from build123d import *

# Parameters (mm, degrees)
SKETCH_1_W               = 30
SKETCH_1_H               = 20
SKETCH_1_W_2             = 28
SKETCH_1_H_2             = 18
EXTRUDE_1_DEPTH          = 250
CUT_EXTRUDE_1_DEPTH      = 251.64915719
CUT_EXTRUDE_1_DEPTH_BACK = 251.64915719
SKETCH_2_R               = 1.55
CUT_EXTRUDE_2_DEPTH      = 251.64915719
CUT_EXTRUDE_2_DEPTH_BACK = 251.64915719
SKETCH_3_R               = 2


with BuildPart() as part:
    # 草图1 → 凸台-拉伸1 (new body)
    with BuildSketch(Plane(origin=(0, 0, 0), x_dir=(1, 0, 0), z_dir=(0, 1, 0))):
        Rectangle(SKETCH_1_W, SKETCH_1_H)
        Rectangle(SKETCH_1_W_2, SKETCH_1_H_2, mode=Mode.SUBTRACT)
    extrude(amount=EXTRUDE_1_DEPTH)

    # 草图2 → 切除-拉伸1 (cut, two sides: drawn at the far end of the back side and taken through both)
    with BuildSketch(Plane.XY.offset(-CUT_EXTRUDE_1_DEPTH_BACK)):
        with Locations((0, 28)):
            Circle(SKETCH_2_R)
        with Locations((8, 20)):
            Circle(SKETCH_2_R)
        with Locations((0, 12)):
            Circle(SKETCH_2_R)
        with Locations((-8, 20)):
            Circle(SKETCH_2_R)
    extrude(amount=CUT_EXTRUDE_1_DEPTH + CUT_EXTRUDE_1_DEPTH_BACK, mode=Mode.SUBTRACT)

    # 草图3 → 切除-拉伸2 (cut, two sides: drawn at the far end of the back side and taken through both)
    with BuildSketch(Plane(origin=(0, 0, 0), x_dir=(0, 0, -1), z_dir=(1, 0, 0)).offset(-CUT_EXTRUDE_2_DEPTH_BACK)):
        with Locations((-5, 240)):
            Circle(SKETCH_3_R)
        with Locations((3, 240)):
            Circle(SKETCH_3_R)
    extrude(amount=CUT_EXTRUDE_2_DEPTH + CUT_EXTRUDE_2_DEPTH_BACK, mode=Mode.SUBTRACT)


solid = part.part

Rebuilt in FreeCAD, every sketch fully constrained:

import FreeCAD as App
import Part
import Sketcher

doc = App.newDocument("Part")
body = doc.addObject("PartDesign::Body", "Body")

sketch1 = body.newObject("Sketcher::SketchObject", "Sketch")
sketch1.AttachmentSupport = (doc.getObject("XZ_Plane"), [""])
sketch1.MapMode = "FlatFace"
sketch1.addGeometry(Part.LineSegment(App.Vector(-15, -10, 0), App.Vector(-15, 10, 0)), False)
sketch1.addGeometry(Part.LineSegment(App.Vector(-15, 10, 0), App.Vector(15, 10, 0)), False)
sketch1.addGeometry(Part.LineSegment(App.Vector(15, 10, 0), App.Vector(15, -10, 0)), False)
sketch1.addGeometry(Part.LineSegment(App.Vector(15, -10, 0), App.Vector(-15, -10, 0)), False)
sketch1.addGeometry(Part.LineSegment(App.Vector(14, 9, 0), App.Vector(-14, 9, 0)), False)
sketch1.addGeometry(Part.LineSegment(App.Vector(-14, 9, 0), App.Vector(-14, -9, 0)), False)
sketch1.addGeometry(Part.LineSegment(App.Vector(-14, -9, 0), App.Vector(14, -9, 0)), False)
sketch1.addGeometry(Part.LineSegment(App.Vector(14, -9, 0), App.Vector(14, 9, 0)), False)
sketch1.addConstraint(Sketcher.Constraint("Coincident", 0, 2, 1, 1))
sketch1.addConstraint(Sketcher.Constraint("Coincident", 1, 2, 2, 1))
sketch1.addConstraint(Sketcher.Constraint("Coincident", 2, 2, 3, 1))
sketch1.addConstraint(Sketcher.Constraint("Coincident", 3, 2, 0, 1))
sketch1.addConstraint(Sketcher.Constraint("Coincident", 4, 2, 5, 1))
sketch1.addConstraint(Sketcher.Constraint("Coincident", 5, 2, 6, 1))
sketch1.addConstraint(Sketcher.Constraint("Coincident", 6, 2, 7, 1))
sketch1.addConstraint(Sketcher.Constraint("Coincident", 7, 2, 4, 1))
sketch1.addConstraint(Sketcher.Constraint("Vertical", 0))
sketch1.addConstraint(Sketcher.Constraint("Horizontal", 1))
sketch1.addConstraint(Sketcher.Constraint("Vertical", 2))
sketch1.addConstraint(Sketcher.Constraint("Horizontal", 3))
sketch1.addConstraint(Sketcher.Constraint("Horizontal", 4))
sketch1.addConstraint(Sketcher.Constraint("Vertical", 5))
sketch1.addConstraint(Sketcher.Constraint("Horizontal", 6))
sketch1.addConstraint(Sketcher.Constraint("Vertical", 7))
sketch1.addConstraint(Sketcher.Constraint("Symmetric", 0, 2, 2, 2, -1, 1))
sketch1.addConstraint(Sketcher.Constraint("Symmetric", 4, 2, 6, 2, -1, 1))
sketch1.addConstraint(Sketcher.Constraint("DistanceX", 1, 1, 1, 2, 30.0))
sketch1.addConstraint(Sketcher.Constraint("DistanceX", 4, 2, 4, 1, 28.0))
sketch1.addConstraint(Sketcher.Constraint("DistanceY", 0, 1, 0, 2, 20.0))
sketch1.addConstraint(Sketcher.Constraint("DistanceY", 5, 2, 5, 1, 18.0))
pad1 = body.newObject("PartDesign::Pad", "Pad")
pad1.Profile = sketch1
pad1.Length = 250
pad1.Reversed = True

sketch2 = body.newObject("Sketcher::SketchObject", "Sketch001")
sketch2.AttachmentSupport = (doc.getObject("XY_Plane"), [""])
sketch2.MapMode = "FlatFace"
sketch2.addGeometry(Part.Circle(App.Vector(0, 28, 0), App.Vector(0, 0, 1), 1.55), False)
sketch2.addGeometry(Part.Circle(App.Vector(8, 20, 0), App.Vector(0, 0, 1), 1.55), False)
sketch2.addGeometry(Part.Circle(App.Vector(0, 12, 0), App.Vector(0, 0, 1), 1.55), False)
sketch2.addGeometry(Part.Circle(App.Vector(-8, 20, 0), App.Vector(0, 0, 1), 1.55), False)
sketch2.addConstraint(Sketcher.Constraint("Equal", 0, 1))
sketch2.addConstraint(Sketcher.Constraint("Equal", 1, 2))
sketch2.addConstraint(Sketcher.Constraint("Equal", 2, 3))
sketch2.addConstraint(Sketcher.Constraint("Symmetric", 1, 3, 3, 3, -2))
sketch2.addConstraint(Sketcher.Constraint("PointOnObject", 0, 3, -2))
sketch2.addConstraint(Sketcher.Constraint("PointOnObject", 2, 3, -2))
sketch2.addConstraint(Sketcher.Constraint("Diameter", 0, 3.1))
sketch2.addConstraint(Sketcher.Constraint("DistanceY", -1, 1, 0, 3, 28.0))
sketch2.addConstraint(Sketcher.Constraint("DistanceX", -1, 1, 1, 3, 8.0))
sketch2.addConstraint(Sketcher.Constraint("DistanceY", -1, 1, 1, 3, 20.0))
sketch2.addConstraint(Sketcher.Constraint("DistanceY", -1, 1, 2, 3, 12.0))
pocket1 = body.newObject("PartDesign::Pocket", "Pocket")
pocket1.Profile = sketch2
pocket1.Type = "ThroughAll"
pocket1.Midplane = True

sketch3 = body.newObject("Sketcher::SketchObject", "Sketch002")
sketch3.AttachmentSupport = (doc.getObject("YZ_Plane"), [""])
sketch3.MapMode = "FlatFace"
sketch3.addGeometry(Part.Circle(App.Vector(240, 5, 0), App.Vector(0, 0, 1), 2), False)
sketch3.addGeometry(Part.Circle(App.Vector(240, -3, 0), App.Vector(0, 0, 1), 2), False)
sketch3.addConstraint(Sketcher.Constraint("Equal", 0, 1))
sketch3.addConstraint(Sketcher.Constraint("Vertical", 0, 3, 1, 3))
sketch3.addConstraint(Sketcher.Constraint("Diameter", 0, 4.0))
sketch3.addConstraint(Sketcher.Constraint("DistanceX", -1, 1, 0, 3, 240.0))
sketch3.addConstraint(Sketcher.Constraint("DistanceY", -1, 1, 0, 3, 5.0))
sketch3.addConstraint(Sketcher.Constraint("DistanceY", 1, 3, -1, 1, 3.0))
pocket2 = body.newObject("PartDesign::Pocket", "Pocket001")
pocket2.Profile = sketch3
pocket2.Type = "ThroughAll"
pocket2.Midplane = True

doc.recompute()
